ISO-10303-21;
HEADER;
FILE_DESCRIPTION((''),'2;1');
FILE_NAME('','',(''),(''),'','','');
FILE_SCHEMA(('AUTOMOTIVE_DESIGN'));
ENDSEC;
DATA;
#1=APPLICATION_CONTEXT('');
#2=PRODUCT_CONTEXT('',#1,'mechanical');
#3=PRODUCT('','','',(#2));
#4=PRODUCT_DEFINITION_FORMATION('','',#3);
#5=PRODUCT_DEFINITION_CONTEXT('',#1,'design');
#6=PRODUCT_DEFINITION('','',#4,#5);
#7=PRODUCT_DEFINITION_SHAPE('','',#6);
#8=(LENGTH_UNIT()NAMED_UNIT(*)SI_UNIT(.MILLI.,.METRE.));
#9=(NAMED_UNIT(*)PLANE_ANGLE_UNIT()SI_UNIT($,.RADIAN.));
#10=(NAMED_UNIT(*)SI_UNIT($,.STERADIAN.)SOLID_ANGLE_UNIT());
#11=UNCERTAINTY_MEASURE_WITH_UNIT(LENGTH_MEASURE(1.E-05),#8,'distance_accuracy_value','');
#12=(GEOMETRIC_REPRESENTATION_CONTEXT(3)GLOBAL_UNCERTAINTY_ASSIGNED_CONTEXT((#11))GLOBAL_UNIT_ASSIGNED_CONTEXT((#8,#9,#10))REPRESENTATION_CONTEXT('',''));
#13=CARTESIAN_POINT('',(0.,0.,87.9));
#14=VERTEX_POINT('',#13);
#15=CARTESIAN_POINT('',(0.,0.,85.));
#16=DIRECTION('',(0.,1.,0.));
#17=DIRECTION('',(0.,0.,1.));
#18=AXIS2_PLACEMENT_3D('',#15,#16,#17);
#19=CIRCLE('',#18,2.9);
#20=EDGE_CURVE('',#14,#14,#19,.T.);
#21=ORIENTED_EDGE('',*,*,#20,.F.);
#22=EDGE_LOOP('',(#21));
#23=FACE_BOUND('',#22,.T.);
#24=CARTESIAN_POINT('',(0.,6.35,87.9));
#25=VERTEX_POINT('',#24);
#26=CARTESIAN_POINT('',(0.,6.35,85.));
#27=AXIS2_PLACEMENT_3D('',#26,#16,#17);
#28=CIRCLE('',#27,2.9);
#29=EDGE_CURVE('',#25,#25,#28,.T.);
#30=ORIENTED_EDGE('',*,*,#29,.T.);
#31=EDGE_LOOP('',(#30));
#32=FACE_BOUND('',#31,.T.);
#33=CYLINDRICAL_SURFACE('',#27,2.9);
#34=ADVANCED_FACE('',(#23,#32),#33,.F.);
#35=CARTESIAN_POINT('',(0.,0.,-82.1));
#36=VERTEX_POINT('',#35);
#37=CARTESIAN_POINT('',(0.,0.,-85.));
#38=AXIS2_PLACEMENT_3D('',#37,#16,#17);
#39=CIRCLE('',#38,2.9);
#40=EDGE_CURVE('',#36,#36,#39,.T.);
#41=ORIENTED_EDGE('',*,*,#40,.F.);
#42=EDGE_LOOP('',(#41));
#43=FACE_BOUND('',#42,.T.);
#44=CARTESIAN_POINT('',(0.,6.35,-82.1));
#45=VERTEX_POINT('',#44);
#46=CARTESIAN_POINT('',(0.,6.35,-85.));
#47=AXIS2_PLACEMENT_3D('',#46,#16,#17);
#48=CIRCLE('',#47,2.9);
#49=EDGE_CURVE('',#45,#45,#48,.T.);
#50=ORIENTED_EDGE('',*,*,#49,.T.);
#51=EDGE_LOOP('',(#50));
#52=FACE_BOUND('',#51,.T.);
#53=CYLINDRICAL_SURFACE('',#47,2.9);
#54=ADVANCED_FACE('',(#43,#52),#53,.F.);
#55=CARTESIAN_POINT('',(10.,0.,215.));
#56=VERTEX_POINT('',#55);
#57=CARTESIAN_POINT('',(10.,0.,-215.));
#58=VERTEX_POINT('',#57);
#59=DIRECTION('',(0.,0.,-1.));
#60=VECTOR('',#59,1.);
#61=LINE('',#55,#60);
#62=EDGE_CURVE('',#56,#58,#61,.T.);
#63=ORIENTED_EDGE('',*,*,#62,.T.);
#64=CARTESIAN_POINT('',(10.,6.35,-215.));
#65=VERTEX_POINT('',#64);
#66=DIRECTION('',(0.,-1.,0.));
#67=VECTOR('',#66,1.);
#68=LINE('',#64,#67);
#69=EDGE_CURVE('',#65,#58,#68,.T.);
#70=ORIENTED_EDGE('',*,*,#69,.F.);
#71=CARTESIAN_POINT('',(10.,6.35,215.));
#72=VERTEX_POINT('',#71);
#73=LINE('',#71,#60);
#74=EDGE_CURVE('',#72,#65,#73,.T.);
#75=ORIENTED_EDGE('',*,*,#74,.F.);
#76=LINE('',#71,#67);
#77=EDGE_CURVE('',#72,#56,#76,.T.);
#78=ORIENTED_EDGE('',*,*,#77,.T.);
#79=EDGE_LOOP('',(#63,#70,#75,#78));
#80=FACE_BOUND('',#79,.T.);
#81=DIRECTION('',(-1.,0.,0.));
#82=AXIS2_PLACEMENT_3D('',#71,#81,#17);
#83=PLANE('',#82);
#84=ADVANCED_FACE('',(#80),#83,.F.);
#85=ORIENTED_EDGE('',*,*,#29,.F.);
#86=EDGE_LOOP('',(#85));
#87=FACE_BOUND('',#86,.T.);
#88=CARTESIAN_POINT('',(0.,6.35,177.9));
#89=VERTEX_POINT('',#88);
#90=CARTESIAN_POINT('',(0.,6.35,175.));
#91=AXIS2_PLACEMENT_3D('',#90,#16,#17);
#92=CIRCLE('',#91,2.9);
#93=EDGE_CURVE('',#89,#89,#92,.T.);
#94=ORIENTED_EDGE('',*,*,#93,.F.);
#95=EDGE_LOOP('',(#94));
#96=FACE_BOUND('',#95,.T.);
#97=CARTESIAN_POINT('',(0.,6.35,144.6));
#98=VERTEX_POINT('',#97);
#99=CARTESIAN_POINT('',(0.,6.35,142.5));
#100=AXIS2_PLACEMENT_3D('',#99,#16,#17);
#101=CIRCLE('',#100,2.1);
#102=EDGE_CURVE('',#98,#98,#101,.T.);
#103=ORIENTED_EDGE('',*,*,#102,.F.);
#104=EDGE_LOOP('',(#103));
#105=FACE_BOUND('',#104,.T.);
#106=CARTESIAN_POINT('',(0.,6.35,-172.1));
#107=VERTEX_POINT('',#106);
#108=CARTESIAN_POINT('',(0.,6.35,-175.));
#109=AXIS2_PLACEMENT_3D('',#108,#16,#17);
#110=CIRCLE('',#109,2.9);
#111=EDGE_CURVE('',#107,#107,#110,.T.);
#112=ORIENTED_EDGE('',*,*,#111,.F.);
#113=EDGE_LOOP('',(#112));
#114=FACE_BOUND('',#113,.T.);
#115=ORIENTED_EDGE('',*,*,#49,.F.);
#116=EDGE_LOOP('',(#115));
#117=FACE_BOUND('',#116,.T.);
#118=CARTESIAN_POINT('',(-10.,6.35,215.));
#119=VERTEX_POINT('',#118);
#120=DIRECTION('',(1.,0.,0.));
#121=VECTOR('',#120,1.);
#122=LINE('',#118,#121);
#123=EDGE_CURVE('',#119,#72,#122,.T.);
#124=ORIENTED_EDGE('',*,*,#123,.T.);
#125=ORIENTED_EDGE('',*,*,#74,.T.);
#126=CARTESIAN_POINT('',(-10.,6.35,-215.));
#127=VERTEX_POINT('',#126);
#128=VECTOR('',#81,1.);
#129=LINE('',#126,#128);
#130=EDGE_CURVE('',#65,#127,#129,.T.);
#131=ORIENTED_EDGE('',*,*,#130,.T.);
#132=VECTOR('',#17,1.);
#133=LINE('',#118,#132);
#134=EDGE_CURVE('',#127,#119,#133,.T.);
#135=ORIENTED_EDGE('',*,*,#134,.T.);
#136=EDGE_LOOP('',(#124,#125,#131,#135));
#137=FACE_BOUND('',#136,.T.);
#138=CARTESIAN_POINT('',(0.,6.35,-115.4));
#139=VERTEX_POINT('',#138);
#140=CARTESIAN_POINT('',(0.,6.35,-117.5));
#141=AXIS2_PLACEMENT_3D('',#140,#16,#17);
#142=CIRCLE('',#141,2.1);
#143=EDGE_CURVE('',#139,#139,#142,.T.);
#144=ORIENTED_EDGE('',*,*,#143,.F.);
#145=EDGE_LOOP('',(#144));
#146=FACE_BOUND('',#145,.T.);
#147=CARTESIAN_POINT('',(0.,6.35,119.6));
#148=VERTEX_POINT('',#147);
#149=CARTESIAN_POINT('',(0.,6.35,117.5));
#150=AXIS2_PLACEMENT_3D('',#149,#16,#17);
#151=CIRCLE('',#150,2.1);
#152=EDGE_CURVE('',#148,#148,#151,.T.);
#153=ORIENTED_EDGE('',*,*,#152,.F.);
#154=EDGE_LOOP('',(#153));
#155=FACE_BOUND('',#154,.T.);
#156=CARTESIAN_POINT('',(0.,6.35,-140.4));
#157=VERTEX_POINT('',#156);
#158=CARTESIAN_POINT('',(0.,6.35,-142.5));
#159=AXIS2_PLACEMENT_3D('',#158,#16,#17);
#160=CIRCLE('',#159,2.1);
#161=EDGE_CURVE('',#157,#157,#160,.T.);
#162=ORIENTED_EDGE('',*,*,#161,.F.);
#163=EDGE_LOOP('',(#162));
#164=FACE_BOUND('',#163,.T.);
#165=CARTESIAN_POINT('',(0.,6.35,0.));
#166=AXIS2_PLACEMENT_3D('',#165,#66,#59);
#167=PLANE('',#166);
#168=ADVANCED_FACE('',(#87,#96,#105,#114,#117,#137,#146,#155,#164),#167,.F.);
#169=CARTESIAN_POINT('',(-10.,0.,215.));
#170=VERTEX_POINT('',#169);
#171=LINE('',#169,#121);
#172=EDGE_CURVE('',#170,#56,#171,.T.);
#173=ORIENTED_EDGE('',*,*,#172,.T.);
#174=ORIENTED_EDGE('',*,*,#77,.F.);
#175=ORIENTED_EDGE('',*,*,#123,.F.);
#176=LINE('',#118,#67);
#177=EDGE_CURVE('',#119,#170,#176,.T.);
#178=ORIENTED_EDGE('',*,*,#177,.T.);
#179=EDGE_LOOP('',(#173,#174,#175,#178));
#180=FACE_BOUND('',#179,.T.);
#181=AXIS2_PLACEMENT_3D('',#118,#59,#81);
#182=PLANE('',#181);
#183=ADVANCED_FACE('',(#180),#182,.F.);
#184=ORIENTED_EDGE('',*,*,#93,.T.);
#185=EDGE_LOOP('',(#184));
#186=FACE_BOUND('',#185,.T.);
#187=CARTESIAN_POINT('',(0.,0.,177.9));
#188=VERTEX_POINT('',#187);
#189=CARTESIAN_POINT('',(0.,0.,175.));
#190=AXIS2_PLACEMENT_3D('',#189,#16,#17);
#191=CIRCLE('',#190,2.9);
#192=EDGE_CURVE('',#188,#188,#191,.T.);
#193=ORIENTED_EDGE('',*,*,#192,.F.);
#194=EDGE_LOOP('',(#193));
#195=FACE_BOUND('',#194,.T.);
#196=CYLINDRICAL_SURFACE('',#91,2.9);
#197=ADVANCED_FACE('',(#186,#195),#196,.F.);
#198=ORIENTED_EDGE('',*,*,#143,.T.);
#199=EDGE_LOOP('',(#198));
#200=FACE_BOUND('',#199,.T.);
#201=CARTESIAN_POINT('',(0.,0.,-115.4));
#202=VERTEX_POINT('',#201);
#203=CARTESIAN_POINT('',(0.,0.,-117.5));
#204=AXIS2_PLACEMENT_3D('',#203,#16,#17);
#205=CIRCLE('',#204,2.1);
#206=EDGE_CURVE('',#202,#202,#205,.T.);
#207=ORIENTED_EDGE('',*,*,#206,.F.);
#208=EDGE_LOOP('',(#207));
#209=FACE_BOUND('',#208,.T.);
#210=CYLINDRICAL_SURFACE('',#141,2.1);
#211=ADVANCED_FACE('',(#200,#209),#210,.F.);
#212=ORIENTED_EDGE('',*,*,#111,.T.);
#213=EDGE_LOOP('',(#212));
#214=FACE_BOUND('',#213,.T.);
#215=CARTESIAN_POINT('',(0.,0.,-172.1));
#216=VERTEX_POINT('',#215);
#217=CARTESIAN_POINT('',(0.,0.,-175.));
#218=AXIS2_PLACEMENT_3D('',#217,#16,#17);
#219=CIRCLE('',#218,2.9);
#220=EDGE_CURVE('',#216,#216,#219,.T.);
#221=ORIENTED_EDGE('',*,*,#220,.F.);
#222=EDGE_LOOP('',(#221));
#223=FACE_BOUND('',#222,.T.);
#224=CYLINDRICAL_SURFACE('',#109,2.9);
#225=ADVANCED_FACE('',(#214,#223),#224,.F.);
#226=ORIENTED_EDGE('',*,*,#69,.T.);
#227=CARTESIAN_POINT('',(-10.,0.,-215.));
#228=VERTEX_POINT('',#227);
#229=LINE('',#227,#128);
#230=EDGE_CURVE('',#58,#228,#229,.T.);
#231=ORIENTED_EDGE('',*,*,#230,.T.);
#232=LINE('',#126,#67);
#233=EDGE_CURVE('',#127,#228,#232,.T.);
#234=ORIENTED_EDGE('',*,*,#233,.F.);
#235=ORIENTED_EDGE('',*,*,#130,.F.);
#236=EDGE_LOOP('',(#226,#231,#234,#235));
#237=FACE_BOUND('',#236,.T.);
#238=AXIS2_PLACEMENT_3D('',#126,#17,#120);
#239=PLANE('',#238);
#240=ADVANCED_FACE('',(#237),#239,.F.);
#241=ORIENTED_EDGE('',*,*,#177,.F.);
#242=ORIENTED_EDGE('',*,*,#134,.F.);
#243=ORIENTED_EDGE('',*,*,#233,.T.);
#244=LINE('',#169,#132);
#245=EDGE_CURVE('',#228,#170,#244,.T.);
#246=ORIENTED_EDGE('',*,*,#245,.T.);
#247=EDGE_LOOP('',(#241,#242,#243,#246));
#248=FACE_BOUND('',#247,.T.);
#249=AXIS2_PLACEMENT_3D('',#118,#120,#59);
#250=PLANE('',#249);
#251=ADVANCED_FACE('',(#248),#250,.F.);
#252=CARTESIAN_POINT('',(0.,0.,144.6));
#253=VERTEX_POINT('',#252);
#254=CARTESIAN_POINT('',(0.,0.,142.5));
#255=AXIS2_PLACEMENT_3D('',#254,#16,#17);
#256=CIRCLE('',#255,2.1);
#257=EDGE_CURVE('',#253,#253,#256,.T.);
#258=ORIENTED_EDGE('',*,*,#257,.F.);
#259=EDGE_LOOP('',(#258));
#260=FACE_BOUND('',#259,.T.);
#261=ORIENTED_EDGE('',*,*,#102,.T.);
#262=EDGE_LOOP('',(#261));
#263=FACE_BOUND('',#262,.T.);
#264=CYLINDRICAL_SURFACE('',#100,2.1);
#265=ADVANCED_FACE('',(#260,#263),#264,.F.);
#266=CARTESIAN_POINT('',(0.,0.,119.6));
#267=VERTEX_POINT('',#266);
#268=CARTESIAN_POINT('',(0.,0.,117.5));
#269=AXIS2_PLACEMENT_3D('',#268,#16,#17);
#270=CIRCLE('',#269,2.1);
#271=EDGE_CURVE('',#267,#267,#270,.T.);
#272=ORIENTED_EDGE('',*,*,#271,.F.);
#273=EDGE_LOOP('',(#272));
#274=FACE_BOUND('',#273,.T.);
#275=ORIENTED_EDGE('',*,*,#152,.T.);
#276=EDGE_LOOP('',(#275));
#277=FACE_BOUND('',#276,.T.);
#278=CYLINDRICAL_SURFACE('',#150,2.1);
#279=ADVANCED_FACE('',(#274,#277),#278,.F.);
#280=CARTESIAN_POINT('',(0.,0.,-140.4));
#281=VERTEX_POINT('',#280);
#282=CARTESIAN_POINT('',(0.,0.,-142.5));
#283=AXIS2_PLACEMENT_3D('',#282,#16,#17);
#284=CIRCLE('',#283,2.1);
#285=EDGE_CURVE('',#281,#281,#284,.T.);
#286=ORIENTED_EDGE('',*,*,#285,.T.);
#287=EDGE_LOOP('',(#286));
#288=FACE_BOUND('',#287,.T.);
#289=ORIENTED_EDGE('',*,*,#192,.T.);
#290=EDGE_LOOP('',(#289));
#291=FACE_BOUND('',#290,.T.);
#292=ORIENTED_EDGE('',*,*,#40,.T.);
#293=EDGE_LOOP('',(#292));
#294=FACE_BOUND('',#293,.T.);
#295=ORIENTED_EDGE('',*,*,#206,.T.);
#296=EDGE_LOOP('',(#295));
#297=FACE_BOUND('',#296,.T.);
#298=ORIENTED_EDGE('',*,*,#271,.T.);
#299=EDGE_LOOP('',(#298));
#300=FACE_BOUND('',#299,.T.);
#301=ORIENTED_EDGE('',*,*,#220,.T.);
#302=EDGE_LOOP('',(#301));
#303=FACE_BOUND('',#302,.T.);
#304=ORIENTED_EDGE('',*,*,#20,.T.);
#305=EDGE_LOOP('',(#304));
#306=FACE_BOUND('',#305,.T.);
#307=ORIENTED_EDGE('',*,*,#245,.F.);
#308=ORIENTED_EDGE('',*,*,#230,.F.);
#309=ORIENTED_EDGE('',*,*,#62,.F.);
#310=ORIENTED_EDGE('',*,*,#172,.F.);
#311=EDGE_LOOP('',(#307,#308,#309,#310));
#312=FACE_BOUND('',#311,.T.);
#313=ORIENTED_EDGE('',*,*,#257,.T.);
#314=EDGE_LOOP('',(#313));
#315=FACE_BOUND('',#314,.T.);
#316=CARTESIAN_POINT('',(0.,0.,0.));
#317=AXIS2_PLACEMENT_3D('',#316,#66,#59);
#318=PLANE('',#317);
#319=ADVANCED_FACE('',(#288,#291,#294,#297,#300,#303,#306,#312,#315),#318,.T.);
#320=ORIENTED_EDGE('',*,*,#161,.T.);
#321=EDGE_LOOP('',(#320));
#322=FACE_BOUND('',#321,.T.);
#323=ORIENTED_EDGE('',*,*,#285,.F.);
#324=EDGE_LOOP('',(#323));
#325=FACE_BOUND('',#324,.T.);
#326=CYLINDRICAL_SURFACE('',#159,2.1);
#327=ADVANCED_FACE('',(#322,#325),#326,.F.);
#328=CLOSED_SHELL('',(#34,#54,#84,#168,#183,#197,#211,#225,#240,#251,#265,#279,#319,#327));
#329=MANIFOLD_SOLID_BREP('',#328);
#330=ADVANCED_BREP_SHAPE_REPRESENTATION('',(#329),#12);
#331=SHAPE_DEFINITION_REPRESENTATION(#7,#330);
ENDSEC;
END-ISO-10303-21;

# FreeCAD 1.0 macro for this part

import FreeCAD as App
import Part
import Sketcher

V = App.Vector
Q = App.Units.Quantity


def add_polygon(sketch, points):
    """Adds a closed chain of lines whose ends are joined by coincident constraints."""
    first, n = sketch.GeometryCount, len(points)
    for a, b in zip(points, points[1:] + points[:1]):
        sketch.addGeometry(Part.LineSegment(App.Vector(*a, 0), App.Vector(*b, 0)), False)
    for i in range(n):
        sketch.addConstraint(Sketcher.Constraint("Coincident", first + i, 2, first + (i + 1) % n, 1))

doc = App.newDocument("Part")
params = doc.addObject("Spreadsheet::Sheet", "Params")
for row, (alias, value) in enumerate([
    ("sketch1_width", "20 mm"),
    ("sketch1_height", "430 mm"),
    ("pad1_length", "6.35 mm"),
    ("sketch2_diameter", "5.8 mm"),
    ("hole_diameter", "5.8 mm"),
    ("sketch3_diameter", "4.2 mm"),
    ("hole2_diameter", "4.2 mm"),
], start=1):
    params.set(f"A{row}", alias)
    params.set(f"B{row}", "=" + value)
    params.setAlias(f"B{row}", alias)

body = doc.addObject("PartDesign::Body", "Body")

# Sketch on XZ plane
sketch1 = body.newObject("Sketcher::SketchObject", "Sketch")
sketch1.AttachmentSupport = (doc.getObject("XZ_Plane"), [""])
sketch1.MapMode = "FlatFace"
add_polygon(sketch1, [(-10, -215), (-10, 215), (10, 215), (10, -215)])  # lines 0-3
sketch1.addConstraint(Sketcher.Constraint("Vertical", 0))
sketch1.addConstraint(Sketcher.Constraint("Horizontal", 1))
sketch1.addConstraint(Sketcher.Constraint("Vertical", 2))
sketch1.addConstraint(Sketcher.Constraint("Horizontal", 3))
sketch1.addConstraint(Sketcher.Constraint("Symmetric", 0, 2, 2, 2, -1, 1))
sketch1.addConstraint(Sketcher.Constraint("DistanceX", 1, 1, 1, 2, Q("20 mm")))
sketch1.addConstraint(Sketcher.Constraint("DistanceY", 0, 1, 0, 2, Q("430 mm")))
sketch1.setExpression("Constraints[9]", "Params.sketch1_width")
sketch1.setExpression("Constraints[10]", "Params.sketch1_height")
pad1 = body.newObject("PartDesign::Pad", "Pad")
pad1.Profile = sketch1
pad1.setExpression("Length", "Params.pad1_length")
pad1.Reversed = True

# Sketch on XZ plane
sketch2 = body.newObject("Sketcher::SketchObject", "Sketch001")
sketch2.AttachmentSupport = (doc.getObject("XZ_Plane"), [""])
sketch2.MapMode = "FlatFace"
sketch2.AttachmentOffset = App.Placement(V(0, 0, -6.35), App.Rotation())
sketch2.addGeometry(Part.Circle(V(0, 175, 0), V(0, 0, 1), 2.9), False)
sketch2.addGeometry(Part.Circle(V(0, 85, 0), V(0, 0, 1), 2.9), False)
sketch2.addConstraint(Sketcher.Constraint("Equal", 0, 1))
sketch2.addConstraint(Sketcher.Constraint("PointOnObject", 0, 3, -2))
sketch2.addConstraint(Sketcher.Constraint("PointOnObject", 1, 3, -2))
sketch2.addConstraint(Sketcher.Constraint("Diameter", 0, Q("5.8 mm")))
sketch2.addConstraint(Sketcher.Constraint("DistanceY", -1, 1, 0, 3, Q("175 mm")))
sketch2.addConstraint(Sketcher.Constraint("DistanceY", -1, 1, 1, 3, Q("85 mm")))
sketch2.setExpression("Constraints[3]", "Params.sketch2_diameter")
doc.recompute()
hole = body.newObject("PartDesign::Hole", "Hole")
hole.Profile = sketch2
hole.ThreadType = "None"
hole.setExpression("Diameter", "Params.hole_diameter")
hole.DepthType = "ThroughAll"
hole.Reversed = True
doc.recompute()

mirrored = body.newObject("PartDesign::Mirrored", "Mirrored")
mirrored.Originals = [hole]
mirrored.MirrorPlane = (doc.getObject("XY_Plane"), [""])
body.Tip = mirrored

# Sketch on XZ plane
sketch3 = body.newObject("Sketcher::SketchObject", "Sketch002")
sketch3.AttachmentSupport = (doc.getObject("XZ_Plane"), [""])
sketch3.MapMode = "FlatFace"
sketch3.AttachmentOffset = App.Placement(V(0, 0, -6.35), App.Rotation())
sketch3.addGeometry(Part.Circle(V(0, 142.5, 0), V(0, 0, 1), 2.1), False)
sketch3.addGeometry(Part.Circle(V(0, 117.5, 0), V(0, 0, 1), 2.1), False)
sketch3.addConstraint(Sketcher.Constraint("Equal", 0, 1))
sketch3.addConstraint(Sketcher.Constraint("PointOnObject", 0, 3, -2))
sketch3.addConstraint(Sketcher.Constraint("PointOnObject", 1, 3, -2))
sketch3.addConstraint(Sketcher.Constraint("Diameter", 0, Q("4.2 mm")))
sketch3.addConstraint(Sketcher.Constraint("DistanceY", 1, 3, 0, 3, Q("25 mm")))
sketch3.addConstraint(Sketcher.Constraint("DistanceY", -1, 1, 0, 3, Q("142.5 mm")))
sketch3.setExpression("Constraints[3]", "Params.sketch3_diameter")
doc.recompute()
hole2 = body.newObject("PartDesign::Hole", "Hole001")
hole2.Profile = sketch3
hole2.ThreadType = "None"
hole2.setExpression("Diameter", "Params.hole2_diameter")
hole2.DepthType = "ThroughAll"
hole2.Reversed = True
doc.recompute()

mirrored2 = body.newObject("PartDesign::Mirrored", "Mirrored001")
mirrored2.Originals = [hole2]
mirrored2.MirrorPlane = (doc.getObject("XY_Plane"), [""])
body.Tip = mirrored2

doc.recompute()
